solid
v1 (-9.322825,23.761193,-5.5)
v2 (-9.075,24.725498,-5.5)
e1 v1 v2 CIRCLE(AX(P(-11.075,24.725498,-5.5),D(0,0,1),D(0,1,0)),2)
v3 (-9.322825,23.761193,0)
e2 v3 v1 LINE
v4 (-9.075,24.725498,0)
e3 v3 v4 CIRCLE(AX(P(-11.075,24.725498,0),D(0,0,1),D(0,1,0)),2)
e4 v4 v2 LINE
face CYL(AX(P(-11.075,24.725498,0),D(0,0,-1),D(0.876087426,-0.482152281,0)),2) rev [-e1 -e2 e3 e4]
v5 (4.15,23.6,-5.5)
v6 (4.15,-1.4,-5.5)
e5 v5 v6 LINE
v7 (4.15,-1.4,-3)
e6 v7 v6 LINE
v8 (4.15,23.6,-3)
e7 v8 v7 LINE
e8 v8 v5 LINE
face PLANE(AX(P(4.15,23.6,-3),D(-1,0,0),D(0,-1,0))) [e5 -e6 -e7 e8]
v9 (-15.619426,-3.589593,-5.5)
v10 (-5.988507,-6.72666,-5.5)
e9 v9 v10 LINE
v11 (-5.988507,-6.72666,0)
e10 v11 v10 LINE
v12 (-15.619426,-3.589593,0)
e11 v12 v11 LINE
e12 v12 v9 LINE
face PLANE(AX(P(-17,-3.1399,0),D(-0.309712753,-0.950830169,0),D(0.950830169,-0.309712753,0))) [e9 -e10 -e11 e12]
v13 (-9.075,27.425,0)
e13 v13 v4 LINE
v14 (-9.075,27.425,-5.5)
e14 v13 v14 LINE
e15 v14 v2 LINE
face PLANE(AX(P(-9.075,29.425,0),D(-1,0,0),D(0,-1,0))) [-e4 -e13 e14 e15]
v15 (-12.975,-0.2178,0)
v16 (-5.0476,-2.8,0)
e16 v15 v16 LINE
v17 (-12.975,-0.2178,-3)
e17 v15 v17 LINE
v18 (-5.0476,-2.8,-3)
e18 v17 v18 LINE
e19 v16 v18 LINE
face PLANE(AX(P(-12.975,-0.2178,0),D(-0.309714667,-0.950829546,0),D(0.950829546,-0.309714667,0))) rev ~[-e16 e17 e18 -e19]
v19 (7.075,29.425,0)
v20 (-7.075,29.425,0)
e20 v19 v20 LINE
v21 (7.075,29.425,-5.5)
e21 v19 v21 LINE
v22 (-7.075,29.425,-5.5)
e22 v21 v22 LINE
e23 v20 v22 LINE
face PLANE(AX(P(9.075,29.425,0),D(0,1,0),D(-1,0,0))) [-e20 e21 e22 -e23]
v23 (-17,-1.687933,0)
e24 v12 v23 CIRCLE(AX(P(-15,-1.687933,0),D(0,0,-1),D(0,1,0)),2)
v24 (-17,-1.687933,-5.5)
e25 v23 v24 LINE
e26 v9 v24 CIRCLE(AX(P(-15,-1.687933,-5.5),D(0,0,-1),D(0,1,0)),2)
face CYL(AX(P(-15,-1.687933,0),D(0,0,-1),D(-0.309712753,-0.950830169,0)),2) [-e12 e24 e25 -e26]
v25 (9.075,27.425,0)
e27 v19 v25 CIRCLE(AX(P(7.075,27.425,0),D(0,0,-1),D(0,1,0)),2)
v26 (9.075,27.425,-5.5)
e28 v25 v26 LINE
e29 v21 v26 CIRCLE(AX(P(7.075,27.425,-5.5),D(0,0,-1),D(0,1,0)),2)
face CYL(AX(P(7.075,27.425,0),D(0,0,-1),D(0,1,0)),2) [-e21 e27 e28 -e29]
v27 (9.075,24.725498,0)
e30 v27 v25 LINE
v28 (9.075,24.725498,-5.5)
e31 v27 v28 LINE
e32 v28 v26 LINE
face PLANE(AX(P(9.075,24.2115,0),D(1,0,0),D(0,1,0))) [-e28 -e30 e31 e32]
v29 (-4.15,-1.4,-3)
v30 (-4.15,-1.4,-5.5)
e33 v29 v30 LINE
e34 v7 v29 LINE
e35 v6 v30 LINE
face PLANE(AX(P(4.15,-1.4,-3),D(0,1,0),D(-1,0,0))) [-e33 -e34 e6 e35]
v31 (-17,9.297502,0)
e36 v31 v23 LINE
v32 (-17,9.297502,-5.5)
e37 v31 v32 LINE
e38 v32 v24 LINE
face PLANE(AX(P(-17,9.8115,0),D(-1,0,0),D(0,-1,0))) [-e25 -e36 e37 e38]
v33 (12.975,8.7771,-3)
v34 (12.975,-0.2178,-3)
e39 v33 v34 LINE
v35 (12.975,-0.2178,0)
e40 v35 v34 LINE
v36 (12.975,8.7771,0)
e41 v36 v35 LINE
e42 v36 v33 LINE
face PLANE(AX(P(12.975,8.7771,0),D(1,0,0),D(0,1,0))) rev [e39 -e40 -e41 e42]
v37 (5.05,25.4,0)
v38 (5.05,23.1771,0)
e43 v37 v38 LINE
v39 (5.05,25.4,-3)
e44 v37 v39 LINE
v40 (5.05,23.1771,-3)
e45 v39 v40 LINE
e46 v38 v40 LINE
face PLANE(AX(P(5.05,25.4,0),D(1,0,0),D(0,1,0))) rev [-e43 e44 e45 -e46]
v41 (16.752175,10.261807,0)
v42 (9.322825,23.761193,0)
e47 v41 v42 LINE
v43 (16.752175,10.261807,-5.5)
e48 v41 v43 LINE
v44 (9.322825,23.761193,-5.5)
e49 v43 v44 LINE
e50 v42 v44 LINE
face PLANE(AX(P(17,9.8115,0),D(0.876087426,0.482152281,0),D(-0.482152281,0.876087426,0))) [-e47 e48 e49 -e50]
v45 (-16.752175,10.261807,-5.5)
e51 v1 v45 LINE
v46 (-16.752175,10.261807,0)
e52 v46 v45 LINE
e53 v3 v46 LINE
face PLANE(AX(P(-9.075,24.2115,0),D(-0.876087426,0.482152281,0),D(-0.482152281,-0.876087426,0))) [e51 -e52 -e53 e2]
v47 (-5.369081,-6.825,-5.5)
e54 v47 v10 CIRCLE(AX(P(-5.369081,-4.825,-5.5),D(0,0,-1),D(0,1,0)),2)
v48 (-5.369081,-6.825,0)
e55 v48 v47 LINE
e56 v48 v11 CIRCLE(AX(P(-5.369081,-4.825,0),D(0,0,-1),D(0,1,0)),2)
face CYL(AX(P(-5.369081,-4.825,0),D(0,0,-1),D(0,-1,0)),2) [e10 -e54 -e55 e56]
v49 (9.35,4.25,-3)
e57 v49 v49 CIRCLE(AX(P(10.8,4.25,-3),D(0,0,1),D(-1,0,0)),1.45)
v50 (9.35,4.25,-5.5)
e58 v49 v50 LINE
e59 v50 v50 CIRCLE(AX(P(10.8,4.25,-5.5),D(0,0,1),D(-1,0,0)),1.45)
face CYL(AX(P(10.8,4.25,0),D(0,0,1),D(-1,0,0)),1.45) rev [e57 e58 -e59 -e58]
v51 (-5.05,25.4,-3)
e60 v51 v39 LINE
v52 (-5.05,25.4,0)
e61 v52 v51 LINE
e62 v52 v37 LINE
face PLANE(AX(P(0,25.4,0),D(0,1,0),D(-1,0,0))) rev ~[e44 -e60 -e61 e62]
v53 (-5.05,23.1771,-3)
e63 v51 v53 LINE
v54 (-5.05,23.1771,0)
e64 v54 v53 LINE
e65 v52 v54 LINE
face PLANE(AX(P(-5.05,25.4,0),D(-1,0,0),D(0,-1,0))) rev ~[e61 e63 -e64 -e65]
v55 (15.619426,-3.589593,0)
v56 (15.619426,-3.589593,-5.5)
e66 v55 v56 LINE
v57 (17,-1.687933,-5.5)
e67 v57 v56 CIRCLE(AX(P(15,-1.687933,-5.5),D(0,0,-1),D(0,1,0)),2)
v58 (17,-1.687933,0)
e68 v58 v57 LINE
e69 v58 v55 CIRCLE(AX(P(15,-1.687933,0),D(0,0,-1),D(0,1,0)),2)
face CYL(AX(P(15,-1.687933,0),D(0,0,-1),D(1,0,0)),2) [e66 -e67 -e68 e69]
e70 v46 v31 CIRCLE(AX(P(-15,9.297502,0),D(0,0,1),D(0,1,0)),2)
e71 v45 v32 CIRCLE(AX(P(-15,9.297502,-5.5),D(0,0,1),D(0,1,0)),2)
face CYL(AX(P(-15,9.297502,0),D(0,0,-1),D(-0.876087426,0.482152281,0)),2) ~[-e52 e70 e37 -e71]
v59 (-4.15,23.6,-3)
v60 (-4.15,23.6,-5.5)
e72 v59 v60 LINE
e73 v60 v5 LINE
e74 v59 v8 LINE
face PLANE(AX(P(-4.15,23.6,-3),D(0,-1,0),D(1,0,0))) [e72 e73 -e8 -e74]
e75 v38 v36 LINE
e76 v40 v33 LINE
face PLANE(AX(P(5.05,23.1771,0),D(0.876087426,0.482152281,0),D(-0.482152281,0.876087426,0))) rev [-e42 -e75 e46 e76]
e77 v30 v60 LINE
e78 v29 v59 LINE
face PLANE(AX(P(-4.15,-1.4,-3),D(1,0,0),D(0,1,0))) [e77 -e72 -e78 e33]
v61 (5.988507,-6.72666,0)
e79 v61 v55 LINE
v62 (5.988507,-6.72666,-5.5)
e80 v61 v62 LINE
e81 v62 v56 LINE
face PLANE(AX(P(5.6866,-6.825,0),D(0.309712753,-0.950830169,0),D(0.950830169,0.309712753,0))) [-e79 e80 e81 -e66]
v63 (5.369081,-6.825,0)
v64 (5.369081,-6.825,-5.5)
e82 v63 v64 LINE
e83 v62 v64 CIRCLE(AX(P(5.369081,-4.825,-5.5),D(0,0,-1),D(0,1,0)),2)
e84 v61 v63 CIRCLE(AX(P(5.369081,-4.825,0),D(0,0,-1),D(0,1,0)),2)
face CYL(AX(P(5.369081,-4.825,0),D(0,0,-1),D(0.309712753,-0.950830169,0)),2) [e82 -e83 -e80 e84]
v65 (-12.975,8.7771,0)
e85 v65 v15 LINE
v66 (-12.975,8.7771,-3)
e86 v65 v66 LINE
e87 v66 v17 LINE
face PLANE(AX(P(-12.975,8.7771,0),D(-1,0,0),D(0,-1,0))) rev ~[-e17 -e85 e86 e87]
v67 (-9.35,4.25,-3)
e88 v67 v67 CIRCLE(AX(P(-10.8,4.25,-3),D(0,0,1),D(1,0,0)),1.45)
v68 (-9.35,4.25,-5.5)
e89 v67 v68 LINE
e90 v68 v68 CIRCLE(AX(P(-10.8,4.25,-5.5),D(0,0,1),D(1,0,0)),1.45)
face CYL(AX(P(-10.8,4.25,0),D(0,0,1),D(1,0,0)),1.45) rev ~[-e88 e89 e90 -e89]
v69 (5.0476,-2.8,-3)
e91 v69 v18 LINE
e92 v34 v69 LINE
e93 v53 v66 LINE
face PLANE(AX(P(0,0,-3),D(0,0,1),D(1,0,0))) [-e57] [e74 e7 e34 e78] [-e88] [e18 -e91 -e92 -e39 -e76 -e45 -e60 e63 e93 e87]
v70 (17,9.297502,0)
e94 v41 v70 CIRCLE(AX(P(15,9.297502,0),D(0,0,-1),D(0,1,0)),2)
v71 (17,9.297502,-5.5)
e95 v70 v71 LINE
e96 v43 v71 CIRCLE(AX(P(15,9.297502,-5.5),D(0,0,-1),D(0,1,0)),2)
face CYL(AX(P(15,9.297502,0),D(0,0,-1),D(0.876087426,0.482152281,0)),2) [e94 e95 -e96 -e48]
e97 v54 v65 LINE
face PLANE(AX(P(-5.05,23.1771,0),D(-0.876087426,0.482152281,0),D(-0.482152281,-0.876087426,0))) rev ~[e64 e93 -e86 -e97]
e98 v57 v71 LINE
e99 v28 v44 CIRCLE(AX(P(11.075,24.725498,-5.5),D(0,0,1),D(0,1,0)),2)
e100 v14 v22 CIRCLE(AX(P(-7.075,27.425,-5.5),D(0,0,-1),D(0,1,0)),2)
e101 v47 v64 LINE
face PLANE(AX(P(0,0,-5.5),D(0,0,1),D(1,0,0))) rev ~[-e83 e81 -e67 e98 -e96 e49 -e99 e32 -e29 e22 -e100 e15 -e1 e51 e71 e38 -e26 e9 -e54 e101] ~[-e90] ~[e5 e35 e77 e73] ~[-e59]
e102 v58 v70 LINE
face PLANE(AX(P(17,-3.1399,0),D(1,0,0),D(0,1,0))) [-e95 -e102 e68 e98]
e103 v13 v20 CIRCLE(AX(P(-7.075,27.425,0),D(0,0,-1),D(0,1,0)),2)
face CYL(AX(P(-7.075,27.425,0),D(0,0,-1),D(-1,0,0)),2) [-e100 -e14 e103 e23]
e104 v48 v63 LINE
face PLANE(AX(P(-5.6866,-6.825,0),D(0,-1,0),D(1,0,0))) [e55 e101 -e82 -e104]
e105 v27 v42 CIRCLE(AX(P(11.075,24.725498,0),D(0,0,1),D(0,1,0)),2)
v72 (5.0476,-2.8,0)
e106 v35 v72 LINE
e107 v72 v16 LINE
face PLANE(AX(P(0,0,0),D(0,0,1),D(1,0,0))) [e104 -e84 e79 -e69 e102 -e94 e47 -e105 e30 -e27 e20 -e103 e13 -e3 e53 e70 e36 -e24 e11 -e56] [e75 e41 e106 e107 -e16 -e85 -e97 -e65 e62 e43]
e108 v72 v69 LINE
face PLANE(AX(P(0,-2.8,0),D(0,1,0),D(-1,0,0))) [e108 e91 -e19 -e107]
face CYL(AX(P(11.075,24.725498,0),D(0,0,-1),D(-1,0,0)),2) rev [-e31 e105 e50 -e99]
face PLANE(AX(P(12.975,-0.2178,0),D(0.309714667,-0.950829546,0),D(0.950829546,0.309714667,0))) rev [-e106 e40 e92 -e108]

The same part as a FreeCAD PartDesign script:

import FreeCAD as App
import Part
import Sketcher
from FreeCAD import Vector


def edges_at(feature, points):
    """Names of the edges that pass closest to the given points."""
    edges = feature.Shape.Edges
    near = lambda p: min(range(len(edges)), key=lambda i: edges[i].distToShape(Part.Vertex(*p))[0])
    return sorted({f"Edge{near(p) + 1}" for p in points})


def add_polygon(sketch, points):
    """Adds a closed chain of lines whose ends are joined by coincident constraints."""
    first, n = sketch.GeometryCount, len(points)
    for a, b in zip(points, points[1:] + points[:1]):
        sketch.addGeometry(Part.LineSegment(App.Vector(*a, 0), App.Vector(*b, 0)), False)
    for i in range(n):
        sketch.addConstraint(Sketcher.Constraint("Coincident", first + i, 2, first + (i + 1) % n, 1))

doc = App.newDocument("Part")
body = doc.addObject("PartDesign::Body", "Body")

# Sketch on XY plane
sketch1 = body.newObject("Sketcher::SketchObject", "Sketch")
sketch1.AttachmentSupport = (doc.getObject("XY_Plane"), [""])
sketch1.MapMode = "FlatFace"
add_polygon(sketch1, [(20, 30), (-20, 30), (-20, -10), (20, -10)])  # lines 0-3
sketch1.addConstraint([
    Sketcher.Constraint("Horizontal", 0),
    Sketcher.Constraint("Vertical", 1),
    Sketcher.Constraint("Horizontal", 2),
    Sketcher.Constraint("Vertical", 3),
    Sketcher.Constraint("Equal", 2, 1),
    Sketcher.Constraint("DistanceX", 0, 2, 0, 1, 40.0),
    Sketcher.Constraint("DistanceY", 1, 2, -1, 1, 10.0),
    Sketcher.Constraint("DistanceX", 0, 2, -1, 1, 20.0),
])
pad1 = body.newObject("PartDesign::Pad", "Pad")
pad1.Profile = sketch1
pad1.Length = 5.5
pad1.Reversed = True

# Sketch on XY plane
sketch2 = body.newObject("Sketcher::SketchObject", "Sketch001")
sketch2.AttachmentSupport = (doc.getObject("XY_Plane"), [""])
sketch2.MapMode = "FlatFace"
add_polygon(sketch2, [(0, -2.8), (0, 25.4), (-5.05, 25.4), (-5.05, 23.1771), (-12.975, 8.7771), (-12.975, -0.2178), (-5.0476, -2.8)])  # lines 0-6
sketch2.addGeometry(Part.Circle(Vector(-10.8, 4.25, 0), Vector(0, 0, 1), 1.25), False)  # 7
sketch2.addConstraint([
    Sketcher.Constraint("Vertical", 0),
    Sketcher.Constraint("Horizontal", 1),
    Sketcher.Constraint("Vertical", 2),
    Sketcher.Constraint("Vertical", 4),
    Sketcher.Constraint("Horizontal", 6),
    Sketcher.Constraint("PointOnObject", 0, 2, -2),
    Sketcher.Constraint("Diameter", 7, 2.5),
    Sketcher.Constraint("DistanceX", 7, 3, -1, 1, 10.8),
    Sketcher.Constraint("DistanceY", 0, 1, 0, 2, 28.2),
    Sketcher.Constraint("DistanceX", 1, 2, 1, 1, 5.05),
    Sketcher.Constraint("DistanceY", -1, 1, 0, 2, 25.4),
    Sketcher.Constraint("DistanceY", 3, 2, 2, 2, 14.4),
    Sketcher.Constraint("DistanceY", 2, 2, 2, 1, 2.223),
    Sketcher.Constraint("DistanceY", 4, 2, 4, 1, 8.995),
    Sketcher.Constraint("DistanceY", -1, 1, 7, 3, 4.25),
    Sketcher.Constraint("DistanceX", 6, 1, 6, 2, 5.0476),
    Sketcher.Constraint("DistanceX", 3, 2, -1, 1, 12.975),
])
pocket1 = body.newObject("PartDesign::Pocket", "Pocket")
pocket1.Profile = sketch2
pocket1.Length = 3

# Sketch on XY plane
sketch3 = body.newObject("Sketcher::SketchObject", "Sketch002")
sketch3.AttachmentSupport = (doc.getObject("XY_Plane"), [""])
sketch3.MapMode = "FlatFace"
sketch3.addGeometry(Part.Circle(Vector(-10.8, 4.25, 0), Vector(0, 0, 1), 1.45), False)
sketch3.addConstraint([
    Sketcher.Constraint("Diameter", 0, 2.9),
    Sketcher.Constraint("DistanceX", 0, 3, -1, 1, 10.8),
    Sketcher.Constraint("DistanceY", -1, 1, 0, 3, 4.25),
])
pocket2 = body.newObject("PartDesign::Pocket", "Pocket001")
pocket2.Profile = sketch3
pocket2.Type = "ThroughAll"
doc.recompute()

mirrored = body.newObject("PartDesign::Mirrored", "Mirrored")
mirrored.Originals = [pocket1, pocket2]
mirrored.MirrorPlane = (doc.getObject("YZ_Plane"), [""])
body.Tip = mirrored

# Sketch on XY plane
sketch4 = body.newObject("Sketcher::SketchObject", "Sketch003")
sketch4.AttachmentSupport = (doc.getObject("XY_Plane"), [""])
sketch4.MapMode = "FlatFace"
sketch4.AttachmentOffset = App.Placement(Vector(0, 0, -3), App.Rotation())
add_polygon(sketch4, [(4.15, 23.6), (-4.15, 23.6), (-4.15, -1.4), (4.15, -1.4)])  # lines 0-3
sketch4.addConstraint([
    Sketcher.Constraint("Horizontal", 0),
    Sketcher.Constraint("Vertical", 1),
    Sketcher.Constraint("Horizontal", 2),
    Sketcher.Constraint("Vertical", 3),
    Sketcher.Constraint("DistanceY", 1, 2, 1, 1, 25.0),
    Sketcher.Constraint("DistanceX", 0, 2, 0, 1, 8.3),
    Sketcher.Constraint("DistanceY", 1, 2, -1, 1, 1.4),
    Sketcher.Constraint("DistanceX", 0, 2, -1, 1, 4.15),
])
pocket3 = body.newObject("PartDesign::Pocket", "Pocket002")
pocket3.Profile = sketch4
pocket3.Type = "ThroughAll"

# Sketch on XY plane
sketch5 = body.newObject("Sketcher::SketchObject", "Sketch004")
sketch5.AttachmentSupport = (doc.getObject("XY_Plane"), [""])
sketch5.MapMode = "FlatFace"
add_polygon(sketch5, [(20, 30), (-20, 30), (-20, -10), (20, -10)])  # lines 0-3
add_polygon(sketch5, [(-17, -3.1399), (-17, 9.8115), (-9.075, 24.2115), (-9.075, 29.425), (9.075, 29.425), (9.075, 24.2115), (17, 9.8115), (17, -3.1399), (5.6866, -6.825), (-5.6866, -6.825)])  # lines 4-13
sketch5.addConstraint([
    Sketcher.Constraint("Horizontal", 0),
    Sketcher.Constraint("Vertical", 1),
    Sketcher.Constraint("Horizontal", 2),
    Sketcher.Constraint("Vertical", 3),
    Sketcher.Constraint("Vertical", 4),
    Sketcher.Constraint("Vertical", 6),
    Sketcher.Constraint("Horizontal", 7),
    Sketcher.Constraint("Vertical", 8),
    Sketcher.Constraint("Vertical", 10),
    Sketcher.Constraint("Horizontal", 12),
    Sketcher.Constraint("Symmetric", 5, 2, 8, 2, -2),
    Sketcher.Constraint("Symmetric", 4, 2, 9, 2, -2),
    Sketcher.Constraint("Horizontal", 10, 2, 13, 2),
    Sketcher.Constraint("Equal", 2, 1),
    Sketcher.Constraint("Equal", 11, 13),
    Sketcher.Constraint("DistanceX", 0, 2, 0, 1, 40.0),
    Sketcher.Constraint("DistanceX", 0, 2, -1, 1, 20.0),
    Sketcher.Constraint("DistanceY", -1, 1, 0, 2, 30.0),
    Sketcher.Constraint("DistanceX", 4, 2, -1, 1, 17.0),
    Sketcher.Constraint("DistanceX", 7, 1, 7, 2, 18.15),
    Sketcher.Constraint("DistanceY", 4, 2, 5, 2, 14.4),
    Sketcher.Constraint("DistanceY", 10, 2, -1, 1, 3.14),
    Sketcher.Constraint("DistanceX", 12, 2, 12, 1, 11.3732),
    Sketcher.Constraint("DistanceY", 4, 1, 4, 2, 12.9514),
    Sketcher.Constraint("DistanceY", 6, 1, 6, 2, 5.2135),
    Sketcher.Constraint("DistanceY", 11, 2, -1, 1, 6.825),
])
pocket4 = body.newObject("PartDesign::Pocket", "Pocket003")
pocket4.Profile = sketch5
pocket4.Type = "ThroughAll"
doc.recompute()

fillet = body.newObject("PartDesign::Fillet", "Fillet")
fillet.Base = (pocket4, edges_at(pocket4, [
    (-9.075, 29.425, -2.75),
    (9.075, 29.425, -2.75),
    (9.075, 24.212, -2.75),
    (17, 9.812, -2.75),
    (17, -3.14, -2.75),
    (5.687, -6.825, -2.75),
    (-5.687, -6.825, -2.75),
    (-17, -3.14, -2.75),
    (-9.075, 24.212, -2.75),
    (-17, 9.812, -2.75),
]))
fillet.Radius = 2

doc.recompute()
